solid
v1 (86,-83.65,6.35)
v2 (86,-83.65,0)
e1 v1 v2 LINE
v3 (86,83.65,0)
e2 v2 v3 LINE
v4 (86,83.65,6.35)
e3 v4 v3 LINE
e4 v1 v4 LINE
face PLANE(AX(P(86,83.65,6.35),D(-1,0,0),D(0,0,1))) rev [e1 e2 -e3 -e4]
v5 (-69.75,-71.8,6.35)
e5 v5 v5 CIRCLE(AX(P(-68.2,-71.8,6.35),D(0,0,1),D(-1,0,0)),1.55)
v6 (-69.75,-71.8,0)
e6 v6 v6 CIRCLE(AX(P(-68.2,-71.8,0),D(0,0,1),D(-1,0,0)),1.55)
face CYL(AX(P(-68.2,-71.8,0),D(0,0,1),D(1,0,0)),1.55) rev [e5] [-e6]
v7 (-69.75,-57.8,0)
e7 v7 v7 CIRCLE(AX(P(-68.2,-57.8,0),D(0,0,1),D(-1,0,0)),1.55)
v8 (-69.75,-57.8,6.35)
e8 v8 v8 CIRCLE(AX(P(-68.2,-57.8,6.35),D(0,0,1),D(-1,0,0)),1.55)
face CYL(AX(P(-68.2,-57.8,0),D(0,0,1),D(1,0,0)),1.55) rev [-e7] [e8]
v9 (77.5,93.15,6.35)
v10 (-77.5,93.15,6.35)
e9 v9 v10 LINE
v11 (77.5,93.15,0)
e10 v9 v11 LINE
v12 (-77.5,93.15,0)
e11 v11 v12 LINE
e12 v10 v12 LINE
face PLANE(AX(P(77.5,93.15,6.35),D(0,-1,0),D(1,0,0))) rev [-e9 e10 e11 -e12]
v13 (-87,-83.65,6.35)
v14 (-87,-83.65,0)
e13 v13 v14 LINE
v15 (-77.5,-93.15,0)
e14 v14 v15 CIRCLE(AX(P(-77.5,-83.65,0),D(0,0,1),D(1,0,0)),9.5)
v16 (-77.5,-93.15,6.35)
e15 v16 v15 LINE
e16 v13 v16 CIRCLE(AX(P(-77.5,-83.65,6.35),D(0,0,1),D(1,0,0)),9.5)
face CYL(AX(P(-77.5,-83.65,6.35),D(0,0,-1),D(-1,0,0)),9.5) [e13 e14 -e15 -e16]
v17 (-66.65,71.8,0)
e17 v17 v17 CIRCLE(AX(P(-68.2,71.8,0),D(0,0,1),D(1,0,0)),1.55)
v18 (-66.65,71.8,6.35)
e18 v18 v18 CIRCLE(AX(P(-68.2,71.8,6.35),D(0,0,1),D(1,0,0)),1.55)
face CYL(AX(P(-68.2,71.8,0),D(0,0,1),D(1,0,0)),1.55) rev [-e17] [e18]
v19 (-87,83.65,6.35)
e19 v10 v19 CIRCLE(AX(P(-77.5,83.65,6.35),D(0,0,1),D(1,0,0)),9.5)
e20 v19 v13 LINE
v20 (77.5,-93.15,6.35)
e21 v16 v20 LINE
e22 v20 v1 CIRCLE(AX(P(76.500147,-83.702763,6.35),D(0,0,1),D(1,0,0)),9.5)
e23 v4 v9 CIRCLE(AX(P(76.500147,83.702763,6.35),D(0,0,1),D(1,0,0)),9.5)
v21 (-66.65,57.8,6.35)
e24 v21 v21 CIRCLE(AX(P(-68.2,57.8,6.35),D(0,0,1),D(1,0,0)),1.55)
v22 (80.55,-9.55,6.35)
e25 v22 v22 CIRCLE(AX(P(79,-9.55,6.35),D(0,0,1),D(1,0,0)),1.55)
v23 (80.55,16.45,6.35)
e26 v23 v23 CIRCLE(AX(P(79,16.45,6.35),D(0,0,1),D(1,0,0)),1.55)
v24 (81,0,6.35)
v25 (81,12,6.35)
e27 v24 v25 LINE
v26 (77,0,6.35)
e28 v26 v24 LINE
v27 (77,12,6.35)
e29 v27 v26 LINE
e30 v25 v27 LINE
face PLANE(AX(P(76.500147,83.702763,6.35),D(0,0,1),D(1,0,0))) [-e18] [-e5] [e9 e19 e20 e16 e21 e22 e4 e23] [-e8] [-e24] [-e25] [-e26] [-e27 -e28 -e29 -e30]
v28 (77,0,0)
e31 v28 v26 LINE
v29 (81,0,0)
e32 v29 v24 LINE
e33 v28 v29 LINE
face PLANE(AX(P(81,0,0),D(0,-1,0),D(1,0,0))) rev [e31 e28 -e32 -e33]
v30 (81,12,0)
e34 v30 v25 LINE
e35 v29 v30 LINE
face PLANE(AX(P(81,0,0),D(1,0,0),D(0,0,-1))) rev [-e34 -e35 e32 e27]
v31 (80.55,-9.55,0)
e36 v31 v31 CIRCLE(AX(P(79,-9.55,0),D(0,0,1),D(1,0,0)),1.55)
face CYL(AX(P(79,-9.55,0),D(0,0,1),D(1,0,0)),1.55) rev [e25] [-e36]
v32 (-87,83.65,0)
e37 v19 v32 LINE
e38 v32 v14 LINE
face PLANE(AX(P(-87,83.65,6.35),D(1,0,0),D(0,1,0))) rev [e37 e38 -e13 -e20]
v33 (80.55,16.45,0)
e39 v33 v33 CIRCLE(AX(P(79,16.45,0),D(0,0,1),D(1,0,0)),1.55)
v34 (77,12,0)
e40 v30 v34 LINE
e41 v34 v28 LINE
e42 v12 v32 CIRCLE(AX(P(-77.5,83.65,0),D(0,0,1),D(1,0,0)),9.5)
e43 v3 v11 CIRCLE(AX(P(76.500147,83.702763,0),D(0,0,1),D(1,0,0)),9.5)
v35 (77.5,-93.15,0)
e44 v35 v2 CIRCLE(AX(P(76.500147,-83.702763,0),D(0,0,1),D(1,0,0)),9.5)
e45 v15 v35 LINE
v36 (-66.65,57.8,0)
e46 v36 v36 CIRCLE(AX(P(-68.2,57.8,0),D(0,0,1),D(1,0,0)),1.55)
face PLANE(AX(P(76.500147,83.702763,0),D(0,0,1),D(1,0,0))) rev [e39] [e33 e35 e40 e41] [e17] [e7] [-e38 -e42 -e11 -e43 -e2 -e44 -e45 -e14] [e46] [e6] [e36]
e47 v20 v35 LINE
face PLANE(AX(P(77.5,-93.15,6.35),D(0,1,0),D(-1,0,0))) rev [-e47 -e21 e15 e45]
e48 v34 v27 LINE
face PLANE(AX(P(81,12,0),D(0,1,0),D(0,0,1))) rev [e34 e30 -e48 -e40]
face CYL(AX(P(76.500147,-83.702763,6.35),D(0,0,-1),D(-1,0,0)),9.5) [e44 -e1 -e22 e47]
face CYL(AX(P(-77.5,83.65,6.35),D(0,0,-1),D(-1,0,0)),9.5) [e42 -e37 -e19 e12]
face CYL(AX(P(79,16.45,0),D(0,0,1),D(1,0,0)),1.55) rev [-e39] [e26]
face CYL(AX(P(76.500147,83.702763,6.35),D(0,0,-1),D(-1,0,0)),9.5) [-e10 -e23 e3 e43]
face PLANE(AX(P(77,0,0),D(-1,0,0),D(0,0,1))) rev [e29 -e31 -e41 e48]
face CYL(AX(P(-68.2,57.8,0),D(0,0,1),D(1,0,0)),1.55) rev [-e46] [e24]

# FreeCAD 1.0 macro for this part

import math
import FreeCAD as App
import Part
import Sketcher

V = App.Vector
Q = App.Units.Quantity


def add_polygon(sketch, points):
    """Adds a closed chain of lines whose ends are joined by coincident constraints."""
    first, n = sketch.GeometryCount, len(points)
    for a, b in zip(points, points[1:] + points[:1]):
        sketch.addGeometry(Part.LineSegment(App.Vector(*a, 0), App.Vector(*b, 0)), False)
    for i in range(n):
        sketch.addConstraint(Sketcher.Constraint("Coincident", first + i, 2, first + (i + 1) % n, 1))

doc = App.newDocument("Part")
params = doc.addObject("Spreadsheet::Sheet", "Params")
for row, (alias, value) in enumerate([
    ("sketch1_radius", "9.5 mm"),
    ("sketch1_width", "155 mm"),
    ("sketch1_height", "167.3 mm"),
    ("pad1_length", "6.35 mm"),
    ("sketch2_width", "4 mm"),
    ("sketch2_height", "12 mm"),
    ("pocket1_length", "6.35 mm"),
    ("sketch3_diameter", "3.1 mm"),
    ("sketch4_diameter", "3.1 mm"),
], start=1):
    params.set(f"A{row}", alias)
    params.set(f"B{row}", "=" + value)
    params.setAlias(f"B{row}", alias)

body = doc.addObject("PartDesign::Body", "Body")

# Sketch on XY plane
sketch1 = doc.addObject("Sketcher::SketchObject", "Sketch")
body.addObject(sketch1)
sketch1.AttachmentSupport = (doc.XY_Plane, [""])
sketch1.MapMode = "FlatFace"
sketch1.addGeometry([
    Part.LineSegment(V(77.5, 93.15, 0), V(-77.5, 93.15, 0)),  # 0
    Part.ArcOfCircle(Part.Circle(V(-77.5, 83.65, 0), V(0, 0, 1), 9.5), math.radians(90), math.radians(180)),  # 1
    Part.LineSegment(V(-87, 83.65, 0), V(-87, -83.65, 0)),  # 2
    Part.ArcOfCircle(Part.Circle(V(-77.5, -83.65, 0), V(0, 0, 1), 9.5), math.radians(-180), math.radians(-90)),  # 3
    Part.LineSegment(V(-77.5, -93.15, 0), V(77.5, -93.15, 0)),  # 4
    Part.ArcOfCircle(Part.Circle(V(76.500147, -83.702763, 0), V(0, 0, 1), 9.5), math.radians(-83.95856), math.radians(0.31822)),  # 5
    Part.LineSegment(V(86, -83.65, 0), V(86, 83.65, 0)),  # 6
    Part.ArcOfCircle(Part.Circle(V(76.500147, 83.702763, 0), V(0, 0, 1), 9.5), math.radians(-0.31822), math.radians(83.95856)),  # 7
], False)
sketch1.addConstraint([
    Sketcher.Constraint("Tangent", 0, 2, 1, 1),
    Sketcher.Constraint("Tangent", 1, 2, 2, 1),
    Sketcher.Constraint("Tangent", 2, 2, 3, 1),
    Sketcher.Constraint("Tangent", 3, 2, 4, 1),
    Sketcher.Constraint("Coincident", 4, 2, 5, 1),
    Sketcher.Constraint("Coincident", 5, 2, 6, 1),
    Sketcher.Constraint("Coincident", 6, 2, 7, 1),
    Sketcher.Constraint("Coincident", 7, 2, 0, 1),
    Sketcher.Constraint("Horizontal", 0),
    Sketcher.Constraint("Vertical", 2),
    Sketcher.Constraint("Horizontal", 4),
    Sketcher.Constraint("Vertical", 6),
    Sketcher.Constraint("Equal", 1, 3),
    Sketcher.Constraint("Equal", 3, 5),
    Sketcher.Constraint("Equal", 5, 7),
    Sketcher.Constraint("Symmetric", 0, 2, 4, 2, -1, 1),
    Sketcher.Constraint("Symmetric", 5, 3, 7, 3, -1),
    Sketcher.Constraint("Horizontal", 2, 2, 5, 2),
    Sketcher.Constraint("Radius", 1, Q("9.5 mm")),
    Sketcher.Constraint("DistanceX", 0, 2, 0, 1, Q("155 mm")),
    Sketcher.Constraint("DistanceY", 2, 2, 2, 1, Q("167.3 mm")),
    Sketcher.Constraint("DistanceX", -1, 1, 5, 2, Q("86 mm")),
])
sketch1.setExpression("Constraints[18]", "Params.sketch1_radius")
sketch1.setExpression("Constraints[19]", "Params.sketch1_width")
sketch1.setExpression("Constraints[20]", "Params.sketch1_height")
pad1 = doc.addObject("PartDesign::Pad", "Pad")
body.addObject(pad1)
pad1.Profile = sketch1
pad1.setExpression("Length", "Params.pad1_length")

# Sketch on XY plane
sketch2 = doc.addObject("Sketcher::SketchObject", "Sketch001")
body.addObject(sketch2)
sketch2.AttachmentSupport = (doc.XY_Plane, [""])
sketch2.MapMode = "FlatFace"
sketch2.AttachmentOffset = App.Placement(V(0, 0, 6.35), App.Rotation())
add_polygon(sketch2, [(77, 12), (77, 0), (81, 0), (81, 12)])  # lines 0-3
sketch2.addConstraint([
    Sketcher.Constraint("Vertical", 0),
    Sketcher.Constraint("Horizontal", 1),
    Sketcher.Constraint("Vertical", 2),
    Sketcher.Constraint("Horizontal", 3),
    Sketcher.Constraint("PointOnObject", 0, 2, -1),
    Sketcher.Constraint("DistanceX", 1, 1, 1, 2, Q("4 mm")),
    Sketcher.Constraint("DistanceY", 0, 2, 0, 1, Q("12 mm")),
    Sketcher.Constraint("DistanceX", -1, 1, 0, 2, Q("77 mm")),
])
sketch2.setExpression("Constraints[9]", "Params.sketch2_width")
sketch2.setExpression("Constraints[10]", "Params.sketch2_height")
pocket1 = doc.addObject("PartDesign::Pocket", "Pocket")
body.addObject(pocket1)
pocket1.Profile = sketch2
pocket1.setExpression("Length", "Params.pocket1_length")

# Sketch on XY plane
sketch3 = doc.addObject("Sketcher::SketchObject", "Sketch002")
body.addObject(sketch3)
sketch3.AttachmentSupport = (doc.XY_Plane, [""])
sketch3.MapMode = "FlatFace"
sketch3.AttachmentOffset = App.Placement(V(0, 0, 6.35), App.Rotation())
sketch3.addGeometry([
    Part.Circle(V(-68.2, 71.8, 0), V(0, 0, 1), 1.6),
    Part.Circle(V(-68.2, 57.8, 0), V(0, 0, 1), 1.6),
    Part.Circle(V(-68.2, -57.8, 0), V(0, 0, 1), 1.6),
    Part.Circle(V(-68.2, -71.8, 0), V(0, 0, 1), 1.6),
], False)
sketch3.addConstraint([
    Sketcher.Constraint("Equal", 0, 1),
    Sketcher.Constraint("Equal", 1, 2),
    Sketcher.Constraint("Equal", 2, 3),
    Sketcher.Constraint("Symmetric", 1, 3, 2, 3, -1),
    Sketcher.Constraint("Symmetric", 0, 3, 3, 3, -1),
    Sketcher.Constraint("Vertical", 0, 3, 1, 3),
    Sketcher.Constraint("Diameter", 0, Q("3.1 mm")),
    Sketcher.Constraint("DistanceY", 1, 3, 0, 3, Q("14 mm")),
    Sketcher.Constraint("DistanceX", 0, 3, -1, 1, Q("68.2 mm")),
    Sketcher.Constraint("DistanceY", -1, 1, 0, 3, Q("71.8 mm")),
])
sketch3.setExpression("Constraints[6]", "Params.sketch3_diameter")
pocket2 = doc.addObject("PartDesign::Pocket", "Pocket001")
body.addObject(pocket2)
pocket2.Profile = sketch3
pocket2.Type = "ThroughAll"

# Sketch on XY plane
sketch4 = doc.addObject("Sketcher::SketchObject", "Sketch003")
body.addObject(sketch4)
sketch4.AttachmentSupport = (doc.XY_Plane, [""])
sketch4.MapMode = "FlatFace"
sketch4.AttachmentOffset = App.Placement(V(0, 0, 6.35), App.Rotation())
sketch4.addGeometry([
    Part.Circle(V(79, 16.4, 0), V(0, 0, 1), 1.6),
    Part.Circle(V(79, -9.6, 0), V(0, 0, 1), 1.6),
], False)
sketch4.addConstraint([
    Sketcher.Constraint("Equal", 0, 1),
    Sketcher.Constraint("Vertical", 0, 3, 1, 3),
    Sketcher.Constraint("Diameter", 0, Q("3.1 mm")),
    Sketcher.Constraint("DistanceX", -1, 1, 0, 3, Q("79 mm")),
    Sketcher.Constraint("DistanceY", 1, 3, 0, 3, Q("26 mm")),
    Sketcher.Constraint("DistanceY", -1, 1, 0, 3, Q("16.45 mm")),
])
sketch4.setExpression("Constraints[2]", "Params.sketch4_diameter")
pocket3 = doc.addObject("PartDesign::Pocket", "Pocket002")
body.addObject(pocket3)
pocket3.Profile = sketch4
pocket3.Type = "ThroughAll"

doc.recompute()
